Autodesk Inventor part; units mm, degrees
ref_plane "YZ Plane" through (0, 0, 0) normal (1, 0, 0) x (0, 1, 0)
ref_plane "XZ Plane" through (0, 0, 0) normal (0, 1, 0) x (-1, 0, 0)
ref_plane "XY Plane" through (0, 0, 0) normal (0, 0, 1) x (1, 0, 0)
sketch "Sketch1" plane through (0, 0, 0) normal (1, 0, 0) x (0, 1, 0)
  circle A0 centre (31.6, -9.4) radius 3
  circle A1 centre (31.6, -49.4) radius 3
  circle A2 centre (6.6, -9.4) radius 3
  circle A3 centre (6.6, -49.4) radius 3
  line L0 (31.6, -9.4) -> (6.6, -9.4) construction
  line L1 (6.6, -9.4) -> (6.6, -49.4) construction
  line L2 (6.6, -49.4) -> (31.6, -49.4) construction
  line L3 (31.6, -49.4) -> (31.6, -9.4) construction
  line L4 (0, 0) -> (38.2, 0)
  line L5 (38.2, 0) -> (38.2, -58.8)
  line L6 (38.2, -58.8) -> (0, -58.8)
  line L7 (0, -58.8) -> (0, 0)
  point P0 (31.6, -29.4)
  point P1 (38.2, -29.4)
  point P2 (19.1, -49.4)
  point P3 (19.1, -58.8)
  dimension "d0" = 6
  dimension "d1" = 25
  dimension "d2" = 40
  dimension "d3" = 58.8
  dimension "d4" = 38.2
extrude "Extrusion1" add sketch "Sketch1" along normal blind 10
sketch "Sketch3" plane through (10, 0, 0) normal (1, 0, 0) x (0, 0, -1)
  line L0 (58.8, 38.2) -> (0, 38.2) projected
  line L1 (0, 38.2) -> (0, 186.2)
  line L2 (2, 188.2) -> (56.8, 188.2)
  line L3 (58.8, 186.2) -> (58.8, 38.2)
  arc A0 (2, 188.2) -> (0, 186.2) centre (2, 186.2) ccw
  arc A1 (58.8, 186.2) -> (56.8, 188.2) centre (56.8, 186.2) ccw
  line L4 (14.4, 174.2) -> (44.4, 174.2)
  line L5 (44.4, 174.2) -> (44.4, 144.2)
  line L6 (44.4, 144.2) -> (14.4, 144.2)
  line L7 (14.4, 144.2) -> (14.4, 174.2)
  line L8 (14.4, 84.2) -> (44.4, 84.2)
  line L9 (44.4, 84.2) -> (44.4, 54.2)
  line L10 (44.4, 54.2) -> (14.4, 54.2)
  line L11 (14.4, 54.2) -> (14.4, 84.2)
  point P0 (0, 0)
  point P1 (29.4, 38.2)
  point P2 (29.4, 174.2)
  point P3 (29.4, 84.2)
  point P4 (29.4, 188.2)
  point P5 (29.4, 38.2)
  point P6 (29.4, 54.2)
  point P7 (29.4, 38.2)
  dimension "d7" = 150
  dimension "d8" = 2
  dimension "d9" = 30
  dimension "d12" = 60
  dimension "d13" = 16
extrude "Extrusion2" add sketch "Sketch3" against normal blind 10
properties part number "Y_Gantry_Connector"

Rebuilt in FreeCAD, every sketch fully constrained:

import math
import FreeCAD as App
import Part
import Sketcher

V = App.Vector
Q = App.Units.Quantity

doc = App.newDocument("Part")
body = doc.addObject("PartDesign::Body", "Body")

sketch1 = body.newObject("Sketcher::SketchObject", "Sketch")
sketch1.AttachmentSupport = (doc.getObject("YZ_Plane"), [""])
sketch1.MapMode = "FlatFace"
sketch1.addGeometry([
    Part.LineSegment(V(38.2, 0, 0), V(0, 0, 0)),
    Part.LineSegment(V(0, 0, 0), V(0, -58.8, 0)),
    Part.LineSegment(V(0, -58.8, 0), V(38.2, -58.8, 0)),
    Part.LineSegment(V(38.2, -58.8, 0), V(38.2, 0, 0)),
    Part.Circle(V(6.6, -49.4, 0), V(0, 0, 1), 3),
    Part.Circle(V(31.6, -49.4, 0), V(0, 0, 1), 3),
    Part.Circle(V(6.6, -9.4, 0), V(0, 0, 1), 3),
    Part.Circle(V(31.6, -9.4, 0), V(0, 0, 1), 3),
], False)
sketch1.addConstraint([
    Sketcher.Constraint("Coincident", 0, 2, 1, 1),
    Sketcher.Constraint("Coincident", 1, 2, 2, 1),
    Sketcher.Constraint("Coincident", 2, 2, 3, 1),
    Sketcher.Constraint("Coincident", 3, 2, 0, 1),
    Sketcher.Constraint("Horizontal", 0),
    Sketcher.Constraint("Vertical", 1),
    Sketcher.Constraint("Horizontal", 2),
    Sketcher.Constraint("Vertical", 3),
    Sketcher.Constraint("Coincident", 0, 2, -1, 1),
    Sketcher.Constraint("Equal", 4, 5),
    Sketcher.Constraint("Equal", 5, 6),
    Sketcher.Constraint("Equal", 6, 7),
    Sketcher.Constraint("Horizontal", 4, 3, 5, 3),
    Sketcher.Constraint("Horizontal", 6, 3, 7, 3),
    Sketcher.Constraint("Vertical", 4, 3, 6, 3),
    Sketcher.Constraint("Vertical", 5, 3, 7, 3),
    Sketcher.Constraint("Diameter", 4, Q("6 mm")),
    Sketcher.Constraint("DistanceX", 0, 2, 0, 1, Q("38.2 mm")),
    Sketcher.Constraint("DistanceY", 1, 2, 1, 1, Q("58.8 mm")),
    Sketcher.Constraint("DistanceX", 4, 3, 5, 3, Q("25 mm")),
    Sketcher.Constraint("DistanceY", 4, 3, 6, 3, Q("40 mm")),
    Sketcher.Constraint("DistanceX", -1, 1, 4, 3, Q("6.6 mm")),
    Sketcher.Constraint("DistanceY", 4, 3, -1, 1, Q("49.4 mm")),
])
pad1 = body.newObject("PartDesign::Pad", "Pad")
pad1.Profile = sketch1
pad1.Length = 10

sketch2 = body.newObject("Sketcher::SketchObject", "Sketch001")
sketch2.AttachmentSupport = (doc.getObject("YZ_Plane"), [""])
sketch2.MapMode = "FlatFace"
sketch2.AttachmentOffset = App.Placement(V(0, 0, 10), App.Rotation())
sketch2.addGeometry([
    Part.LineSegment(V(38.2, 0, 0), V(38.2, -58.8, 0)),
    Part.LineSegment(V(38.2, -58.8, 0), V(186.2, -58.8, 0)),
    Part.ArcOfCircle(Part.Circle(V(186.2, -56.8, 0), V(0, 0, 1), 2), math.radians(-90), math.radians(0)),
    Part.LineSegment(V(188.2, -56.8, 0), V(188.2, -2, 0)),
    Part.ArcOfCircle(Part.Circle(V(186.2, -2, 0), V(0, 0, 1), 2), math.radians(0), math.radians(90)),
    Part.LineSegment(V(186.2, 0, 0), V(38.2, 0, 0)),
    Part.LineSegment(V(54.2, -14.4, 0), V(84.2, -14.4, 0)),
    Part.LineSegment(V(84.2, -14.4, 0), V(84.2, -44.4, 0)),
    Part.LineSegment(V(84.2, -44.4, 0), V(54.2, -44.4, 0)),
    Part.LineSegment(V(54.2, -44.4, 0), V(54.2, -14.4, 0)),
    Part.LineSegment(V(144.2, -14.4, 0), V(174.2, -14.4, 0)),
    Part.LineSegment(V(174.2, -14.4, 0), V(174.2, -44.4, 0)),
    Part.LineSegment(V(174.2, -44.4, 0), V(144.2, -44.4, 0)),
    Part.LineSegment(V(144.2, -44.4, 0), V(144.2, -14.4, 0)),
], False)
sketch2.addConstraint([
    Sketcher.Constraint("Coincident", 0, 2, 1, 1),
    Sketcher.Constraint("Tangent", 1, 2, 2, 1),
    Sketcher.Constraint("Tangent", 2, 2, 3, 1),
    Sketcher.Constraint("Tangent", 3, 2, 4, 1),
    Sketcher.Constraint("Tangent", 4, 2, 5, 1),
    Sketcher.Constraint("Coincident", 5, 2, 0, 1),
    Sketcher.Constraint("Coincident", 6, 2, 7, 1),
    Sketcher.Constraint("Coincident", 7, 2, 8, 1),
    Sketcher.Constraint("Coincident", 8, 2, 9, 1),
    Sketcher.Constraint("Coincident", 9, 2, 6, 1),
    Sketcher.Constraint("Coincident", 10, 2, 11, 1),
    Sketcher.Constraint("Coincident", 11, 2, 12, 1),
    Sketcher.Constraint("Coincident", 12, 2, 13, 1),
    Sketcher.Constraint("Coincident", 13, 2, 10, 1),
    Sketcher.Constraint("Vertical", 0),
    Sketcher.Constraint("Horizontal", 1),
    Sketcher.Constraint("Vertical", 3),
    Sketcher.Constraint("Horizontal", 5),
    Sketcher.Constraint("Horizontal", 6),
    Sketcher.Constraint("Vertical", 7),
    Sketcher.Constraint("Horizontal", 8),
    Sketcher.Constraint("Vertical", 9),
    Sketcher.Constraint("Horizontal", 10),
    Sketcher.Constraint("Vertical", 11),
    Sketcher.Constraint("Horizontal", 12),
    Sketcher.Constraint("Vertical", 13),
    Sketcher.Constraint("Equal", 2, 4),
    Sketcher.Constraint("PointOnObject", 4, 2, -1),
    Sketcher.Constraint("Horizontal", 9, 2, 10, 2),
    Sketcher.Constraint("Horizontal", 8, 2, 11, 2),
    Sketcher.Constraint("Equal", 8, 10),
    Sketcher.Constraint("Equal", 12, 7),
    Sketcher.Constraint("Radius", 2, Q("2 mm")),
    Sketcher.Constraint("DistanceX", 6, 1, 6, 2, Q("30 mm")),
    Sketcher.Constraint("DistanceX", 0, 2, 2, 2, Q("150 mm")),
    Sketcher.Constraint("DistanceX", 0, 2, 8, 2, Q("16 mm")),
    Sketcher.Constraint("DistanceY", 0, 2, 0, 1, Q("58.8 mm")),
    Sketcher.Constraint("DistanceX", 10, 2, 4, 3, Q("12 mm")),
    Sketcher.Constraint("DistanceX", -1, 1, 2, 3, Q("186.2 mm")),
    Sketcher.Constraint("DistanceY", 6, 2, -1, 1, Q("14.4 mm")),
])
pad2 = body.newObject("PartDesign::Pad", "Pad001")
pad2.Profile = sketch2
pad2.Length = 10
pad2.Reversed = True

doc.recompute()
